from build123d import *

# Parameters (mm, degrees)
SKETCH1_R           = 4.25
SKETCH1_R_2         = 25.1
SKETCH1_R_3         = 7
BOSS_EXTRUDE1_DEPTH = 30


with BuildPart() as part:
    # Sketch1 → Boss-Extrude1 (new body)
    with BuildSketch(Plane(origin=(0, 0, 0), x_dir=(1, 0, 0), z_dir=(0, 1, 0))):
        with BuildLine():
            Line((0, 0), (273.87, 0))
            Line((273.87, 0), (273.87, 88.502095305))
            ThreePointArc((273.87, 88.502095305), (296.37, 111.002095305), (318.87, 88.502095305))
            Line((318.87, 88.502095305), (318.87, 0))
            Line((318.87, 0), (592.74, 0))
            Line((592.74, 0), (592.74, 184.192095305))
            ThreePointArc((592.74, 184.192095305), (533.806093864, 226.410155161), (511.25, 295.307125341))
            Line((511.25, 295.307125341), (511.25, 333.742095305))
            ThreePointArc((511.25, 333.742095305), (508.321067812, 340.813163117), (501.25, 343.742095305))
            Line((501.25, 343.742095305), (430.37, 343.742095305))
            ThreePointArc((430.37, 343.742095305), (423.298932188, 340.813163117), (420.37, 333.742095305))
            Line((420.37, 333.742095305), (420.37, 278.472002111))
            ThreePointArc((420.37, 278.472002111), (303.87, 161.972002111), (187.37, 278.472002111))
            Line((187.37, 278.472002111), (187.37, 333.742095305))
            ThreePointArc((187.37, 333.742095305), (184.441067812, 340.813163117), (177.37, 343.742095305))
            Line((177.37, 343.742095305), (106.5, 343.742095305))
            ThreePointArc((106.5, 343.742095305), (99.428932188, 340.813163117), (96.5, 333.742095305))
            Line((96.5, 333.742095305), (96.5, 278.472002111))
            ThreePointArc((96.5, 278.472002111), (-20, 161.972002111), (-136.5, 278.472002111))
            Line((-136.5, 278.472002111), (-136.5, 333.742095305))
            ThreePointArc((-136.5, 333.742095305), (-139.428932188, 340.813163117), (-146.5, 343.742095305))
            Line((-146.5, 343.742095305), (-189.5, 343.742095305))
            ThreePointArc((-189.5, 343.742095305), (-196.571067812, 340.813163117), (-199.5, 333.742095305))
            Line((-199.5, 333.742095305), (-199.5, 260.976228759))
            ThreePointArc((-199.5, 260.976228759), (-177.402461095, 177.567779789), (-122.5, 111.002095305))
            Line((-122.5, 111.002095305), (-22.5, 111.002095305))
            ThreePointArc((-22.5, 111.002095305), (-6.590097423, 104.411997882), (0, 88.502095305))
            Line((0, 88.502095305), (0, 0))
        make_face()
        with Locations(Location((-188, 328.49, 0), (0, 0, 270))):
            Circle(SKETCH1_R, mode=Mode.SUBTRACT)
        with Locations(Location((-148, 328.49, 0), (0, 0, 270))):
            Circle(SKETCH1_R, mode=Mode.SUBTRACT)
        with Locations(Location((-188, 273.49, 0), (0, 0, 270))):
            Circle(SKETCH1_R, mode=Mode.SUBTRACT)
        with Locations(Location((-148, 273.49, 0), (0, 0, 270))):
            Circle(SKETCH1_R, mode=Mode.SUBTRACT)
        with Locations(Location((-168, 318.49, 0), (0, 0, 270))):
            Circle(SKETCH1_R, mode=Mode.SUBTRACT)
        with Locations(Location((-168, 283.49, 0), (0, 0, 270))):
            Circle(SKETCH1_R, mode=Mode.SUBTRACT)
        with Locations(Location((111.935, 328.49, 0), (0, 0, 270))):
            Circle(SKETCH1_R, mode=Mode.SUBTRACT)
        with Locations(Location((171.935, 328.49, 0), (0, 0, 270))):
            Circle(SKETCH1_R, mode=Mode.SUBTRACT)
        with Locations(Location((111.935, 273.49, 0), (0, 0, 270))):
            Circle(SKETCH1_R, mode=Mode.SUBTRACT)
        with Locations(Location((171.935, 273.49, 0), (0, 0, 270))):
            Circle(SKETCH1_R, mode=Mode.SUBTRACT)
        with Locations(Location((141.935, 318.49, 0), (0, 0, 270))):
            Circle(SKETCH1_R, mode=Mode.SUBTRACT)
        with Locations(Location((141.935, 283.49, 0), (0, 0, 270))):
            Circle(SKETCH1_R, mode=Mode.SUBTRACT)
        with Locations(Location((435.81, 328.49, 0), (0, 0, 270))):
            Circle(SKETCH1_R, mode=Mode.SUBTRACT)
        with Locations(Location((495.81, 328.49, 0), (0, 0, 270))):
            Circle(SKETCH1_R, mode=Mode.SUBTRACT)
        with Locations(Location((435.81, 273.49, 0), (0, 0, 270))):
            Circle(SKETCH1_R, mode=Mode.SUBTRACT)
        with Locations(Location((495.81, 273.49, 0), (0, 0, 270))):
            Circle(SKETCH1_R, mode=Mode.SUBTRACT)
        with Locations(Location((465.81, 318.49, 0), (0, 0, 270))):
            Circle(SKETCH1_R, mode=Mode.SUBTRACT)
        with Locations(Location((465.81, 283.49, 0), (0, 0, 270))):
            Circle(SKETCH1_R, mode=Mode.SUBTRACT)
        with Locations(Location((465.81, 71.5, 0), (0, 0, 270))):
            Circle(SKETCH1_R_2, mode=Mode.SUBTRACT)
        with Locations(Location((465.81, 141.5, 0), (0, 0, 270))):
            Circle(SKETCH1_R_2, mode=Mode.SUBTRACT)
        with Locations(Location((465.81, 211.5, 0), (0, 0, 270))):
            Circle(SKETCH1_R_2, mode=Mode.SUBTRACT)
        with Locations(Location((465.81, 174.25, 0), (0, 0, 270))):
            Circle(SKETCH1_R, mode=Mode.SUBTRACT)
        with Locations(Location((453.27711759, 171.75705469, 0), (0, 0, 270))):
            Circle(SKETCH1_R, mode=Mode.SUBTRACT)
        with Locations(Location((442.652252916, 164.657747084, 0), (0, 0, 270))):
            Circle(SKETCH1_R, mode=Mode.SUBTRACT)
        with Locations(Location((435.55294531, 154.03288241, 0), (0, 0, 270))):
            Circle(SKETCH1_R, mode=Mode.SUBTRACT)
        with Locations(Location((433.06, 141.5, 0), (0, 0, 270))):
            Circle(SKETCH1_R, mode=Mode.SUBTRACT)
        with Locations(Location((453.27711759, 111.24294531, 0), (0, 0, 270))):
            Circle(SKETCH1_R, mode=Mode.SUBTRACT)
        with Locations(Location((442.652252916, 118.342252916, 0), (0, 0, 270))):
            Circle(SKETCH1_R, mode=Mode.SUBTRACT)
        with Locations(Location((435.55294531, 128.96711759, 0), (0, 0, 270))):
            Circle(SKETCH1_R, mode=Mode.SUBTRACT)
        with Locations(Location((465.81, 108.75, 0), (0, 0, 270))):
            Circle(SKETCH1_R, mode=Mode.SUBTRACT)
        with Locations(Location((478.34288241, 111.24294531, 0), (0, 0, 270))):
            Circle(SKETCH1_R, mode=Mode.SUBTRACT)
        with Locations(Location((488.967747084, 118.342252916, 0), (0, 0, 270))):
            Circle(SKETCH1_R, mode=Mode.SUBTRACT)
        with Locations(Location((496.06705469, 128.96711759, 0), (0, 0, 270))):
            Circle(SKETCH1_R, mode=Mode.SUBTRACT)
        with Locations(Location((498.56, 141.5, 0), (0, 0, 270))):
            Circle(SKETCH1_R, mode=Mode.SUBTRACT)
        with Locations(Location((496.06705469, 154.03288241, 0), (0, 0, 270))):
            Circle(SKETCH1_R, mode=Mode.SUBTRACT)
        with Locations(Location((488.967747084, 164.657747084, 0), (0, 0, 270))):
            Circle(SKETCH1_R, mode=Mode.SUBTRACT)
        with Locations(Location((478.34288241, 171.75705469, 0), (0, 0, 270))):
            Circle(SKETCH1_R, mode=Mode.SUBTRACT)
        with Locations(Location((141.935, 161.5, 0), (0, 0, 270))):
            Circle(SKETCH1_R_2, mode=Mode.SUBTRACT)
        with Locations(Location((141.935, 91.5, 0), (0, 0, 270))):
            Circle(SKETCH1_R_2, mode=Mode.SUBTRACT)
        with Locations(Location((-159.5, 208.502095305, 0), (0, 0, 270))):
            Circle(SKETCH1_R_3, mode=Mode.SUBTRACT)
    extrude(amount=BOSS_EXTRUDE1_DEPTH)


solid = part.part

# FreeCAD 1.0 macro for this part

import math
import FreeCAD as App
import Part
import Sketcher
from FreeCAD import Vector
Q = App.Units.Quantity

doc = App.newDocument("Part")
params = doc.addObject("Spreadsheet::Sheet", "Params")
for row, (alias, value) in enumerate([
    ("sketch1_diameter", "14 mm"),
    ("sketch1_radius", "10 mm"),
    ("sketch1_diameter2", "50.2 mm"),
    ("sketch1_diameter3", "8.5 mm"),
    ("sketch1_radius2", "22.5 mm"),
    ("pad1_length", "30 mm"),
], start=1):
    params.set(f"A{row}", alias)
    params.set(f"B{row}", "=" + value)
    params.setAlias(f"B{row}", alias)

body = doc.addObject("PartDesign::Body", "Body")

sketch1 = body.newObject("Sketcher::SketchObject", "Sketch")
sketch1.AttachmentSupport = (doc.getObject("XZ_Plane"), [""])
sketch1.MapMode = "FlatFace"
sketch1.addGeometry([
    Part.LineSegment(Vector(0, 0, 0), Vector(273.9, 0, 0)),
    Part.LineSegment(Vector(273.9, 0, 0), Vector(273.9, -88.5, 0)),
    Part.ArcOfCircle(Part.Circle(Vector(296.4, -88.5, 0), Vector(0, 0, 1), 22.5), math.radians(180), math.radians(360)),
    Part.LineSegment(Vector(318.9, -88.5, 0), Vector(318.9, 0, 0)),
    Part.LineSegment(Vector(318.9, 0, 0), Vector(592.7, 0, 0)),
    Part.LineSegment(Vector(592.7, 0, 0), Vector(592.7, -184.2, 0)),
    Part.ArcOfCircle(Part.Circle(Vector(627.7, -295.3, 0), Vector(0, 0, 1), 116.5), math.radians(107), math.radians(180)),
    Part.LineSegment(Vector(511.2, -295.3, 0), Vector(511.2, -333.7, 0)),
    Part.ArcOfCircle(Part.Circle(Vector(501.2, -333.7, 0), Vector(0, 0, 1), 10), math.radians(-90), math.radians(0)),
    Part.LineSegment(Vector(501.2, -343.7, 0), Vector(430.4, -343.7, 0)),
    Part.ArcOfCircle(Part.Circle(Vector(430.4, -333.7, 0), Vector(0, 0, 1), 10), math.radians(180), math.radians(270)),
    Part.LineSegment(Vector(420.4, -333.7, 0), Vector(420.4, -278.5, 0)),
    Part.ArcOfCircle(Part.Circle(Vector(303.9, -278.5, 0), Vector(0, 0, 1), 116.5), math.radians(0), math.radians(180)),
    Part.LineSegment(Vector(187.4, -278.5, 0), Vector(187.4, -333.7, 0)),
    Part.ArcOfCircle(Part.Circle(Vector(177.4, -333.7, 0), Vector(0, 0, 1), 10), math.radians(-90), math.radians(0)),
    Part.LineSegment(Vector(177.4, -343.7, 0), Vector(106.5, -343.7, 0)),
    Part.ArcOfCircle(Part.Circle(Vector(106.5, -333.7, 0), Vector(0, 0, 1), 10), math.radians(180), math.radians(270)),
    Part.LineSegment(Vector(96.5, -333.7, 0), Vector(96.5, -278.5, 0)),
    Part.ArcOfCircle(Part.Circle(Vector(-20, -278.5, 0), Vector(0, 0, 1), 116.5), math.radians(0), math.radians(180)),
    Part.LineSegment(Vector(-136.5, -278.5, 0), Vector(-136.5, -333.7, 0)),
    Part.ArcOfCircle(Part.Circle(Vector(-146.5, -333.7, 0), Vector(0, 0, 1), 10), math.radians(-90), math.radians(0)),
    Part.LineSegment(Vector(-146.5, -343.7, 0), Vector(-189.5, -343.7, 0)),
    Part.ArcOfCircle(Part.Circle(Vector(-189.5, -333.7, 0), Vector(0, 0, 1), 10), math.radians(180), math.radians(270)),
    Part.LineSegment(Vector(-199.5, -333.7, 0), Vector(-199.5, -261, 0)),
    Part.ArcOfCircle(Part.Circle(Vector(2.2, -269.8, 0), Vector(0, 0, 1), 201.9), math.radians(128), math.radians(177)),
    Part.LineSegment(Vector(-122.5, -111, 0), Vector(-22.5, -111, 0)),
    Part.ArcOfCircle(Part.Circle(Vector(-22.5, -88.5, 0), Vector(0, 0, 1), 22.5), math.radians(-90), math.radians(0)),
    Part.LineSegment(Vector(0, -88.5, 0), Vector(0, 0, 0)),
    Part.Circle(Vector(141.9, -91.5, 0), Vector(0, 0, 1), 25.1),
    Part.Circle(Vector(141.9, -161.5, 0), Vector(0, 0, 1), 25.1),
    Part.Circle(Vector(465.8, -71.5, 0), Vector(0, 0, 1), 25.1),
    Part.Circle(Vector(453.3, -111.2, 0), Vector(0, 0, 1), 4.2),
    Part.Circle(Vector(465.8, -108.8, 0), Vector(0, 0, 1), 4.2),
    Part.Circle(Vector(478.3, -111.2, 0), Vector(0, 0, 1), 4.2),
    Part.Circle(Vector(442.7, -118.3, 0), Vector(0, 0, 1), 4.2),
    Part.Circle(Vector(435.6, -129, 0), Vector(0, 0, 1), 4.2),
    Part.Circle(Vector(489, -118.3, 0), Vector(0, 0, 1), 4.2),
    Part.Circle(Vector(496.1, -129, 0), Vector(0, 0, 1), 4.2),
    Part.Circle(Vector(433.1, -141.5, 0), Vector(0, 0, 1), 4.2),
    Part.Circle(Vector(465.8, -141.5, 0), Vector(0, 0, 1), 25.1),
    Part.Circle(Vector(498.6, -141.5, 0), Vector(0, 0, 1), 4.2),
    Part.Circle(Vector(435.6, -154, 0), Vector(0, 0, 1), 4.2),
    Part.Circle(Vector(442.7, -164.7, 0), Vector(0, 0, 1), 4.2),
    Part.Circle(Vector(496.1, -154, 0), Vector(0, 0, 1), 4.2),
    Part.Circle(Vector(489, -164.7, 0), Vector(0, 0, 1), 4.2),
    Part.Circle(Vector(453.3, -171.8, 0), Vector(0, 0, 1), 4.2),
    Part.Circle(Vector(465.8, -174.2, 0), Vector(0, 0, 1), 4.2),
    Part.Circle(Vector(478.3, -171.8, 0), Vector(0, 0, 1), 4.2),
    Part.Circle(Vector(-159.5, -208.5, 0), Vector(0, 0, 1), 7),
    Part.Circle(Vector(-188, -273.5, 0), Vector(0, 0, 1), 4.2),
    Part.Circle(Vector(-148, -273.5, 0), Vector(0, 0, 1), 4.2),
    Part.Circle(Vector(-168, -283.5, 0), Vector(0, 0, 1), 4.2),
    Part.Circle(Vector(-168, -318.5, 0), Vector(0, 0, 1), 4.2),
    Part.Circle(Vector(-188, -328.5, 0), Vector(0, 0, 1), 4.2),
    Part.Circle(Vector(-148, -328.5, 0), Vector(0, 0, 1), 4.2),
    Part.Circle(Vector(111.9, -273.5, 0), Vector(0, 0, 1), 4.2),
    Part.Circle(Vector(141.9, -283.5, 0), Vector(0, 0, 1), 4.2),
    Part.Circle(Vector(141.9, -318.5, 0), Vector(0, 0, 1), 4.2),
    Part.Circle(Vector(111.9, -328.5, 0), Vector(0, 0, 1), 4.2),
    Part.Circle(Vector(465.8, -211.5, 0), Vector(0, 0, 1), 25.1),
    Part.Circle(Vector(171.9, -273.5, 0), Vector(0, 0, 1), 4.2),
    Part.Circle(Vector(171.9, -328.5, 0), Vector(0, 0, 1), 4.2),
    Part.Circle(Vector(435.8, -273.5, 0), Vector(0, 0, 1), 4.2),
    Part.Circle(Vector(495.8, -273.5, 0), Vector(0, 0, 1), 4.2),
    Part.Circle(Vector(465.8, -283.5, 0), Vector(0, 0, 1), 4.2),
    Part.Circle(Vector(435.8, -328.5, 0), Vector(0, 0, 1), 4.2),
    Part.Circle(Vector(465.8, -318.5, 0), Vector(0, 0, 1), 4.2),
    Part.Circle(Vector(495.8, -328.5, 0), Vector(0, 0, 1), 4.2),
], False)
sketch1.addConstraint([
    Sketcher.Constraint("Coincident", 0, 2, 1, 1),
    Sketcher.Constraint("Tangent", 1, 2, 2, 1),
    Sketcher.Constraint("Tangent", 2, 2, 3, 1),
    Sketcher.Constraint("Coincident", 3, 2, 4, 1),
    Sketcher.Constraint("Coincident", 4, 2, 5, 1),
    Sketcher.Constraint("Coincident", 5, 2, 6, 1),
    Sketcher.Constraint("Tangent", 6, 2, 7, 1),
    Sketcher.Constraint("Tangent", 7, 2, 8, 2),
    Sketcher.Constraint("Tangent", 8, 1, 9, 1),
    Sketcher.Constraint("Tangent", 9, 2, 10, 2),
    Sketcher.Constraint("Tangent", 10, 1, 11, 1),
    Sketcher.Constraint("Tangent", 11, 2, 12, 1),
    Sketcher.Constraint("Tangent", 12, 2, 13, 1),
    Sketcher.Constraint("Tangent", 13, 2, 14, 2),
    Sketcher.Constraint("Tangent", 14, 1, 15, 1),
    Sketcher.Constraint("Tangent", 15, 2, 16, 2),
    Sketcher.Constraint("Tangent", 16, 1, 17, 1),
    Sketcher.Constraint("Tangent", 17, 2, 18, 1),
    Sketcher.Constraint("Tangent", 18, 2, 19, 1),
    Sketcher.Constraint("Tangent", 19, 2, 20, 2),
    Sketcher.Constraint("Tangent", 20, 1, 21, 1),
    Sketcher.Constraint("Tangent", 21, 2, 22, 2),
    Sketcher.Constraint("Tangent", 22, 1, 23, 1),
    Sketcher.Constraint("Coincident", 23, 2, 24, 2),
    Sketcher.Constraint("Coincident", 24, 1, 25, 1),
    Sketcher.Constraint("Tangent", 25, 2, 26, 1),
    Sketcher.Constraint("Tangent", 26, 2, 27, 1),
    Sketcher.Constraint("Coincident", 27, 2, 0, 1),
    Sketcher.Constraint("Horizontal", 0),
    Sketcher.Constraint("Vertical", 1),
    Sketcher.Constraint("Vertical", 3),
    Sketcher.Constraint("Horizontal", 4),
    Sketcher.Constraint("Vertical", 5),
    Sketcher.Constraint("Vertical", 7),
    Sketcher.Constraint("Horizontal", 9),
    Sketcher.Constraint("Vertical", 11),
    Sketcher.Constraint("Vertical", 13),
    Sketcher.Constraint("Horizontal", 15),
    Sketcher.Constraint("Vertical", 17),
    Sketcher.Constraint("Vertical", 19),
    Sketcher.Constraint("Horizontal", 21),
    Sketcher.Constraint("Vertical", 23),
    Sketcher.Constraint("Horizontal", 25),
    Sketcher.Constraint("Vertical", 27),
    Sketcher.Constraint("Coincident", 27, 2, -1, 1),
    Sketcher.Constraint("Equal", 8, 10),
    Sketcher.Constraint("Equal", 6, 12),
    Sketcher.Constraint("Equal", 10, 14),
    Sketcher.Constraint("Equal", 14, 16),
    Sketcher.Constraint("Equal", 12, 18),
    Sketcher.Constraint("Equal", 16, 20),
    Sketcher.Constraint("Equal", 20, 22),
    Sketcher.Constraint("Equal", 2, 26),
    Sketcher.Constraint("Equal", 28, 29),
    Sketcher.Constraint("Equal", 29, 30),
    Sketcher.Constraint("Equal", 31, 32),
    Sketcher.Constraint("Equal", 32, 33),
    Sketcher.Constraint("Equal", 33, 34),
    Sketcher.Constraint("Equal", 34, 35),
    Sketcher.Constraint("Equal", 35, 36),
    Sketcher.Constraint("Equal", 36, 37),
    Sketcher.Constraint("Equal", 37, 38),
    Sketcher.Constraint("Equal", 30, 39),
    Sketcher.Constraint("Equal", 38, 40),
    Sketcher.Constraint("Equal", 40, 41),
    Sketcher.Constraint("Equal", 41, 42),
    Sketcher.Constraint("Equal", 42, 43),
    Sketcher.Constraint("Equal", 43, 44),
    Sketcher.Constraint("Equal", 44, 45),
    Sketcher.Constraint("Equal", 45, 46),
    Sketcher.Constraint("Equal", 46, 47),
    Sketcher.Constraint("Equal", 47, 49),
    Sketcher.Constraint("Equal", 49, 50),
    Sketcher.Constraint("Equal", 50, 51),
    Sketcher.Constraint("Equal", 51, 52),
    Sketcher.Constraint("Equal", 52, 53),
    Sketcher.Constraint("Equal", 53, 54),
    Sketcher.Constraint("Equal", 54, 55),
    Sketcher.Constraint("Equal", 55, 56),
    Sketcher.Constraint("Equal", 56, 57),
    Sketcher.Constraint("Equal", 57, 58),
    Sketcher.Constraint("Equal", 39, 59),
    Sketcher.Constraint("Equal", 58, 60),
    Sketcher.Constraint("Equal", 60, 61),
    Sketcher.Constraint("Equal", 61, 62),
    Sketcher.Constraint("Equal", 62, 63),
    Sketcher.Constraint("Equal", 63, 64),
    Sketcher.Constraint("Equal", 64, 65),
    Sketcher.Constraint("Equal", 65, 66),
    Sketcher.Constraint("Equal", 66, 67),
    Sketcher.Constraint("PointOnObject", 3, 2, -1),
    Sketcher.Constraint("Horizontal", 10, 3, 14, 3),
    Sketcher.Constraint("Horizontal", 12, 3, 18, 3),
    Sketcher.Constraint("Horizontal", 16, 3, 20, 3),
    Sketcher.Constraint("Horizontal", 2, 3, 26, 3),
    Sketcher.Constraint("Horizontal", 31, 3, 33, 3),
    Sketcher.Constraint("Horizontal", 34, 3, 36, 3),
    Sketcher.Constraint("Horizontal", 35, 3, 37, 3),
    Sketcher.Constraint("Horizontal", 38, 3, 39, 3),
    Sketcher.Constraint("Horizontal", 39, 3, 40, 3),
    Sketcher.Constraint("Horizontal", 41, 3, 43, 3),
    Sketcher.Constraint("Horizontal", 42, 3, 44, 3),
    Sketcher.Constraint("Horizontal", 45, 3, 47, 3),
    Sketcher.Constraint("Horizontal", 49, 3, 50, 3),
    Sketcher.Constraint("Horizontal", 53, 3, 54, 3),
    Sketcher.Constraint("Horizontal", 50, 3, 55, 3),
    Sketcher.Constraint("Horizontal", 51, 3, 56, 3),
    Sketcher.Constraint("Horizontal", 52, 3, 57, 3),
    Sketcher.Constraint("Horizontal", 54, 3, 58, 3),
    Sketcher.Constraint("Horizontal", 55, 3, 60, 3),
    Sketcher.Constraint("Horizontal", 58, 3, 61, 3),
    Sketcher.Constraint("Horizontal", 60, 3, 62, 3),
    Sketcher.Constraint("Horizontal", 62, 3, 63, 3),
    Sketcher.Constraint("Horizontal", 56, 3, 64, 3),
    Sketcher.Constraint("Horizontal", 61, 3, 65, 3),
    Sketcher.Constraint("Horizontal", 57, 3, 66, 3),
    Sketcher.Constraint("Horizontal", 65, 3, 67, 3),
    Sketcher.Constraint("Vertical", 28, 3, 29, 3),
    Sketcher.Constraint("Vertical", 30, 3, 32, 3),
    Sketcher.Constraint("Vertical", 32, 3, 39, 3),
    Sketcher.Constraint("Vertical", 35, 3, 41, 3),
    Sketcher.Constraint("Vertical", 34, 3, 42, 3),
    Sketcher.Constraint("Vertical", 37, 3, 43, 3),
    Sketcher.Constraint("Vertical", 36, 3, 44, 3),
    Sketcher.Constraint("Vertical", 31, 3, 45, 3),
    Sketcher.Constraint("Vertical", 39, 3, 46, 3),
    Sketcher.Constraint("Vertical", 33, 3, 47, 3),
    Sketcher.Constraint("Vertical", 51, 3, 52, 3),
    Sketcher.Constraint("Vertical", 49, 3, 53, 3),
    Sketcher.Constraint("Vertical", 50, 3, 54, 3),
    Sketcher.Constraint("Vertical", 29, 3, 56, 3),
    Sketcher.Constraint("Vertical", 56, 3, 57, 3),
    Sketcher.Constraint("Vertical", 55, 3, 58, 3),
    Sketcher.Constraint("Vertical", 46, 3, 59, 3),
    Sketcher.Constraint("Vertical", 60, 3, 61, 3),
    Sketcher.Constraint("Vertical", 59, 3, 64, 3),
    Sketcher.Constraint("Vertical", 62, 3, 65, 3),
    Sketcher.Constraint("Vertical", 64, 3, 66, 3),
    Sketcher.Constraint("Vertical", 63, 3, 67, 3),
    Sketcher.Constraint("Equal", 0, 4),
    Sketcher.Constraint("Diameter", 48, Q("14 mm")),
    Sketcher.Constraint("Radius", 8, Q("10 mm")),
    Sketcher.Constraint("Diameter", 28, Q("50.2 mm")),
    Sketcher.Constraint("Diameter", 31, Q("8.5 mm")),
    Sketcher.Constraint("Radius", 2, Q("22.5 mm")),
    Sketcher.Constraint("Radius", 6, Q("116.5 mm")),
    Sketcher.Constraint("Radius", 24, Q("201.9 mm")),
    Sketcher.Constraint("DistanceX", 21, 2, 21, 1, Q("43 mm")),
    Sketcher.Constraint("DistanceX", 25, 1, 25, 2, Q("100 mm")),
    Sketcher.Constraint("DistanceX", 18, 3, -1, 1, Q("20 mm")),
    Sketcher.Constraint("DistanceX", 49, 3, -1, 1, Q("188 mm")),
    Sketcher.Constraint("DistanceX", 50, 3, -1, 1, Q("148 mm")),
    Sketcher.Constraint("DistanceX", 51, 3, -1, 1, Q("168 mm")),
    Sketcher.Constraint("DistanceX", 0, 1, 0, 2, Q("273.87 mm")),
    Sketcher.Constraint("DistanceX", 9, 2, 9, 1, Q("70.88 mm")),
    Sketcher.Constraint("DistanceX", 15, 2, 15, 1, Q("70.87 mm")),
    Sketcher.Constraint("DistanceY", 28, 3, -1, 1, Q("91.5 mm")),
    Sketcher.Constraint("DistanceY", 29, 3, -1, 1, Q("161.5 mm")),
    Sketcher.Constraint("DistanceY", 30, 3, -1, 1, Q("71.5 mm")),
    Sketcher.Constraint("DistanceY", 38, 3, -1, 1, Q("141.5 mm")),
    Sketcher.Constraint("DistanceX", 48, 3, -1, 1, Q("159.5 mm")),
    Sketcher.Constraint("DistanceY", 59, 3, -1, 1, Q("211.5 mm")),
    Sketcher.Constraint("DistanceX", -1, 1, 30, 3, Q("465.81 mm")),
    Sketcher.Constraint("DistanceY", 32, 3, -1, 1, Q("108.75 mm")),
    Sketcher.Constraint("DistanceX", -1, 1, 38, 3, Q("433.06 mm")),
    Sketcher.Constraint("DistanceX", -1, 1, 40, 3, Q("498.56 mm")),
    Sketcher.Constraint("DistanceY", 46, 3, -1, 1, Q("174.25 mm")),
    Sketcher.Constraint("DistanceY", 49, 3, -1, 1, Q("273.49 mm")),
    Sketcher.Constraint("DistanceY", 51, 3, -1, 1, Q("283.49 mm")),
    Sketcher.Constraint("DistanceY", 52, 3, -1, 1, Q("318.49 mm")),
    Sketcher.Constraint("DistanceY", 53, 3, -1, 1, Q("328.49 mm")),
    Sketcher.Constraint("DistanceX", -1, 1, 62, 3, Q("435.81 mm")),
    Sketcher.Constraint("DistanceX", -1, 1, 63, 3, Q("495.81 mm")),
    Sketcher.Constraint("DistanceX", -1, 1, 28, 3, Q("141.935 mm")),
    Sketcher.Constraint("DistanceX", -1, 1, 55, 3, Q("111.935 mm")),
    Sketcher.Constraint("DistanceX", -1, 1, 60, 3, Q("171.935 mm")),
    Sketcher.Constraint("DistanceY", 7, 2, 7, 1, Q("38.43497 mm")),
    Sketcher.Constraint("DistanceY", 1, 2, 1, 1, Q("88.502095 mm")),
    Sketcher.Constraint("DistanceY", 5, 2, 5, 1, Q("184.192095 mm")),
    Sketcher.Constraint("DistanceY", 11, 1, 11, 2, Q("55.270093 mm")),
    Sketcher.Constraint("DistanceY", 23, 1, 23, 2, Q("72.765867 mm")),
    Sketcher.Constraint("DistanceX", -1, 1, 31, 3, Q("453.277118 mm")),
    Sketcher.Constraint("DistanceY", 31, 3, -1, 1, Q("111.242945 mm")),
    Sketcher.Constraint("DistanceX", -1, 1, 33, 3, Q("478.342882 mm")),
    Sketcher.Constraint("DistanceX", -1, 1, 34, 3, Q("442.652253 mm")),
    Sketcher.Constraint("DistanceY", 34, 3, -1, 1, Q("118.342253 mm")),
    Sketcher.Constraint("DistanceX", -1, 1, 35, 3, Q("435.552945 mm")),
    Sketcher.Constraint("DistanceY", 35, 3, -1, 1, Q("128.967118 mm")),
    Sketcher.Constraint("DistanceX", -1, 1, 36, 3, Q("488.967747 mm")),
    Sketcher.Constraint("DistanceX", -1, 1, 37, 3, Q("496.067055 mm")),
    Sketcher.Constraint("DistanceY", 41, 3, -1, 1, Q("154.032882 mm")),
    Sketcher.Constraint("DistanceY", 42, 3, -1, 1, Q("164.657747 mm")),
    Sketcher.Constraint("DistanceY", 45, 3, -1, 1, Q("171.757055 mm")),
    Sketcher.Constraint("DistanceY", 48, 3, -1, 1, Q("208.502095 mm")),
])
sketch1.setExpression("Constraints[140]", "Params.sketch1_diameter")
sketch1.setExpression("Constraints[141]", "Params.sketch1_radius")
sketch1.setExpression("Constraints[142]", "Params.sketch1_diameter2")
sketch1.setExpression("Constraints[143]", "Params.sketch1_diameter3")
sketch1.setExpression("Constraints[144]", "Params.sketch1_radius2")
pad1 = body.newObject("PartDesign::Pad", "Pad")
pad1.Profile = sketch1
pad1.setExpression("Length", "Params.pad1_length")
pad1.Reversed = True

doc.recompute()
